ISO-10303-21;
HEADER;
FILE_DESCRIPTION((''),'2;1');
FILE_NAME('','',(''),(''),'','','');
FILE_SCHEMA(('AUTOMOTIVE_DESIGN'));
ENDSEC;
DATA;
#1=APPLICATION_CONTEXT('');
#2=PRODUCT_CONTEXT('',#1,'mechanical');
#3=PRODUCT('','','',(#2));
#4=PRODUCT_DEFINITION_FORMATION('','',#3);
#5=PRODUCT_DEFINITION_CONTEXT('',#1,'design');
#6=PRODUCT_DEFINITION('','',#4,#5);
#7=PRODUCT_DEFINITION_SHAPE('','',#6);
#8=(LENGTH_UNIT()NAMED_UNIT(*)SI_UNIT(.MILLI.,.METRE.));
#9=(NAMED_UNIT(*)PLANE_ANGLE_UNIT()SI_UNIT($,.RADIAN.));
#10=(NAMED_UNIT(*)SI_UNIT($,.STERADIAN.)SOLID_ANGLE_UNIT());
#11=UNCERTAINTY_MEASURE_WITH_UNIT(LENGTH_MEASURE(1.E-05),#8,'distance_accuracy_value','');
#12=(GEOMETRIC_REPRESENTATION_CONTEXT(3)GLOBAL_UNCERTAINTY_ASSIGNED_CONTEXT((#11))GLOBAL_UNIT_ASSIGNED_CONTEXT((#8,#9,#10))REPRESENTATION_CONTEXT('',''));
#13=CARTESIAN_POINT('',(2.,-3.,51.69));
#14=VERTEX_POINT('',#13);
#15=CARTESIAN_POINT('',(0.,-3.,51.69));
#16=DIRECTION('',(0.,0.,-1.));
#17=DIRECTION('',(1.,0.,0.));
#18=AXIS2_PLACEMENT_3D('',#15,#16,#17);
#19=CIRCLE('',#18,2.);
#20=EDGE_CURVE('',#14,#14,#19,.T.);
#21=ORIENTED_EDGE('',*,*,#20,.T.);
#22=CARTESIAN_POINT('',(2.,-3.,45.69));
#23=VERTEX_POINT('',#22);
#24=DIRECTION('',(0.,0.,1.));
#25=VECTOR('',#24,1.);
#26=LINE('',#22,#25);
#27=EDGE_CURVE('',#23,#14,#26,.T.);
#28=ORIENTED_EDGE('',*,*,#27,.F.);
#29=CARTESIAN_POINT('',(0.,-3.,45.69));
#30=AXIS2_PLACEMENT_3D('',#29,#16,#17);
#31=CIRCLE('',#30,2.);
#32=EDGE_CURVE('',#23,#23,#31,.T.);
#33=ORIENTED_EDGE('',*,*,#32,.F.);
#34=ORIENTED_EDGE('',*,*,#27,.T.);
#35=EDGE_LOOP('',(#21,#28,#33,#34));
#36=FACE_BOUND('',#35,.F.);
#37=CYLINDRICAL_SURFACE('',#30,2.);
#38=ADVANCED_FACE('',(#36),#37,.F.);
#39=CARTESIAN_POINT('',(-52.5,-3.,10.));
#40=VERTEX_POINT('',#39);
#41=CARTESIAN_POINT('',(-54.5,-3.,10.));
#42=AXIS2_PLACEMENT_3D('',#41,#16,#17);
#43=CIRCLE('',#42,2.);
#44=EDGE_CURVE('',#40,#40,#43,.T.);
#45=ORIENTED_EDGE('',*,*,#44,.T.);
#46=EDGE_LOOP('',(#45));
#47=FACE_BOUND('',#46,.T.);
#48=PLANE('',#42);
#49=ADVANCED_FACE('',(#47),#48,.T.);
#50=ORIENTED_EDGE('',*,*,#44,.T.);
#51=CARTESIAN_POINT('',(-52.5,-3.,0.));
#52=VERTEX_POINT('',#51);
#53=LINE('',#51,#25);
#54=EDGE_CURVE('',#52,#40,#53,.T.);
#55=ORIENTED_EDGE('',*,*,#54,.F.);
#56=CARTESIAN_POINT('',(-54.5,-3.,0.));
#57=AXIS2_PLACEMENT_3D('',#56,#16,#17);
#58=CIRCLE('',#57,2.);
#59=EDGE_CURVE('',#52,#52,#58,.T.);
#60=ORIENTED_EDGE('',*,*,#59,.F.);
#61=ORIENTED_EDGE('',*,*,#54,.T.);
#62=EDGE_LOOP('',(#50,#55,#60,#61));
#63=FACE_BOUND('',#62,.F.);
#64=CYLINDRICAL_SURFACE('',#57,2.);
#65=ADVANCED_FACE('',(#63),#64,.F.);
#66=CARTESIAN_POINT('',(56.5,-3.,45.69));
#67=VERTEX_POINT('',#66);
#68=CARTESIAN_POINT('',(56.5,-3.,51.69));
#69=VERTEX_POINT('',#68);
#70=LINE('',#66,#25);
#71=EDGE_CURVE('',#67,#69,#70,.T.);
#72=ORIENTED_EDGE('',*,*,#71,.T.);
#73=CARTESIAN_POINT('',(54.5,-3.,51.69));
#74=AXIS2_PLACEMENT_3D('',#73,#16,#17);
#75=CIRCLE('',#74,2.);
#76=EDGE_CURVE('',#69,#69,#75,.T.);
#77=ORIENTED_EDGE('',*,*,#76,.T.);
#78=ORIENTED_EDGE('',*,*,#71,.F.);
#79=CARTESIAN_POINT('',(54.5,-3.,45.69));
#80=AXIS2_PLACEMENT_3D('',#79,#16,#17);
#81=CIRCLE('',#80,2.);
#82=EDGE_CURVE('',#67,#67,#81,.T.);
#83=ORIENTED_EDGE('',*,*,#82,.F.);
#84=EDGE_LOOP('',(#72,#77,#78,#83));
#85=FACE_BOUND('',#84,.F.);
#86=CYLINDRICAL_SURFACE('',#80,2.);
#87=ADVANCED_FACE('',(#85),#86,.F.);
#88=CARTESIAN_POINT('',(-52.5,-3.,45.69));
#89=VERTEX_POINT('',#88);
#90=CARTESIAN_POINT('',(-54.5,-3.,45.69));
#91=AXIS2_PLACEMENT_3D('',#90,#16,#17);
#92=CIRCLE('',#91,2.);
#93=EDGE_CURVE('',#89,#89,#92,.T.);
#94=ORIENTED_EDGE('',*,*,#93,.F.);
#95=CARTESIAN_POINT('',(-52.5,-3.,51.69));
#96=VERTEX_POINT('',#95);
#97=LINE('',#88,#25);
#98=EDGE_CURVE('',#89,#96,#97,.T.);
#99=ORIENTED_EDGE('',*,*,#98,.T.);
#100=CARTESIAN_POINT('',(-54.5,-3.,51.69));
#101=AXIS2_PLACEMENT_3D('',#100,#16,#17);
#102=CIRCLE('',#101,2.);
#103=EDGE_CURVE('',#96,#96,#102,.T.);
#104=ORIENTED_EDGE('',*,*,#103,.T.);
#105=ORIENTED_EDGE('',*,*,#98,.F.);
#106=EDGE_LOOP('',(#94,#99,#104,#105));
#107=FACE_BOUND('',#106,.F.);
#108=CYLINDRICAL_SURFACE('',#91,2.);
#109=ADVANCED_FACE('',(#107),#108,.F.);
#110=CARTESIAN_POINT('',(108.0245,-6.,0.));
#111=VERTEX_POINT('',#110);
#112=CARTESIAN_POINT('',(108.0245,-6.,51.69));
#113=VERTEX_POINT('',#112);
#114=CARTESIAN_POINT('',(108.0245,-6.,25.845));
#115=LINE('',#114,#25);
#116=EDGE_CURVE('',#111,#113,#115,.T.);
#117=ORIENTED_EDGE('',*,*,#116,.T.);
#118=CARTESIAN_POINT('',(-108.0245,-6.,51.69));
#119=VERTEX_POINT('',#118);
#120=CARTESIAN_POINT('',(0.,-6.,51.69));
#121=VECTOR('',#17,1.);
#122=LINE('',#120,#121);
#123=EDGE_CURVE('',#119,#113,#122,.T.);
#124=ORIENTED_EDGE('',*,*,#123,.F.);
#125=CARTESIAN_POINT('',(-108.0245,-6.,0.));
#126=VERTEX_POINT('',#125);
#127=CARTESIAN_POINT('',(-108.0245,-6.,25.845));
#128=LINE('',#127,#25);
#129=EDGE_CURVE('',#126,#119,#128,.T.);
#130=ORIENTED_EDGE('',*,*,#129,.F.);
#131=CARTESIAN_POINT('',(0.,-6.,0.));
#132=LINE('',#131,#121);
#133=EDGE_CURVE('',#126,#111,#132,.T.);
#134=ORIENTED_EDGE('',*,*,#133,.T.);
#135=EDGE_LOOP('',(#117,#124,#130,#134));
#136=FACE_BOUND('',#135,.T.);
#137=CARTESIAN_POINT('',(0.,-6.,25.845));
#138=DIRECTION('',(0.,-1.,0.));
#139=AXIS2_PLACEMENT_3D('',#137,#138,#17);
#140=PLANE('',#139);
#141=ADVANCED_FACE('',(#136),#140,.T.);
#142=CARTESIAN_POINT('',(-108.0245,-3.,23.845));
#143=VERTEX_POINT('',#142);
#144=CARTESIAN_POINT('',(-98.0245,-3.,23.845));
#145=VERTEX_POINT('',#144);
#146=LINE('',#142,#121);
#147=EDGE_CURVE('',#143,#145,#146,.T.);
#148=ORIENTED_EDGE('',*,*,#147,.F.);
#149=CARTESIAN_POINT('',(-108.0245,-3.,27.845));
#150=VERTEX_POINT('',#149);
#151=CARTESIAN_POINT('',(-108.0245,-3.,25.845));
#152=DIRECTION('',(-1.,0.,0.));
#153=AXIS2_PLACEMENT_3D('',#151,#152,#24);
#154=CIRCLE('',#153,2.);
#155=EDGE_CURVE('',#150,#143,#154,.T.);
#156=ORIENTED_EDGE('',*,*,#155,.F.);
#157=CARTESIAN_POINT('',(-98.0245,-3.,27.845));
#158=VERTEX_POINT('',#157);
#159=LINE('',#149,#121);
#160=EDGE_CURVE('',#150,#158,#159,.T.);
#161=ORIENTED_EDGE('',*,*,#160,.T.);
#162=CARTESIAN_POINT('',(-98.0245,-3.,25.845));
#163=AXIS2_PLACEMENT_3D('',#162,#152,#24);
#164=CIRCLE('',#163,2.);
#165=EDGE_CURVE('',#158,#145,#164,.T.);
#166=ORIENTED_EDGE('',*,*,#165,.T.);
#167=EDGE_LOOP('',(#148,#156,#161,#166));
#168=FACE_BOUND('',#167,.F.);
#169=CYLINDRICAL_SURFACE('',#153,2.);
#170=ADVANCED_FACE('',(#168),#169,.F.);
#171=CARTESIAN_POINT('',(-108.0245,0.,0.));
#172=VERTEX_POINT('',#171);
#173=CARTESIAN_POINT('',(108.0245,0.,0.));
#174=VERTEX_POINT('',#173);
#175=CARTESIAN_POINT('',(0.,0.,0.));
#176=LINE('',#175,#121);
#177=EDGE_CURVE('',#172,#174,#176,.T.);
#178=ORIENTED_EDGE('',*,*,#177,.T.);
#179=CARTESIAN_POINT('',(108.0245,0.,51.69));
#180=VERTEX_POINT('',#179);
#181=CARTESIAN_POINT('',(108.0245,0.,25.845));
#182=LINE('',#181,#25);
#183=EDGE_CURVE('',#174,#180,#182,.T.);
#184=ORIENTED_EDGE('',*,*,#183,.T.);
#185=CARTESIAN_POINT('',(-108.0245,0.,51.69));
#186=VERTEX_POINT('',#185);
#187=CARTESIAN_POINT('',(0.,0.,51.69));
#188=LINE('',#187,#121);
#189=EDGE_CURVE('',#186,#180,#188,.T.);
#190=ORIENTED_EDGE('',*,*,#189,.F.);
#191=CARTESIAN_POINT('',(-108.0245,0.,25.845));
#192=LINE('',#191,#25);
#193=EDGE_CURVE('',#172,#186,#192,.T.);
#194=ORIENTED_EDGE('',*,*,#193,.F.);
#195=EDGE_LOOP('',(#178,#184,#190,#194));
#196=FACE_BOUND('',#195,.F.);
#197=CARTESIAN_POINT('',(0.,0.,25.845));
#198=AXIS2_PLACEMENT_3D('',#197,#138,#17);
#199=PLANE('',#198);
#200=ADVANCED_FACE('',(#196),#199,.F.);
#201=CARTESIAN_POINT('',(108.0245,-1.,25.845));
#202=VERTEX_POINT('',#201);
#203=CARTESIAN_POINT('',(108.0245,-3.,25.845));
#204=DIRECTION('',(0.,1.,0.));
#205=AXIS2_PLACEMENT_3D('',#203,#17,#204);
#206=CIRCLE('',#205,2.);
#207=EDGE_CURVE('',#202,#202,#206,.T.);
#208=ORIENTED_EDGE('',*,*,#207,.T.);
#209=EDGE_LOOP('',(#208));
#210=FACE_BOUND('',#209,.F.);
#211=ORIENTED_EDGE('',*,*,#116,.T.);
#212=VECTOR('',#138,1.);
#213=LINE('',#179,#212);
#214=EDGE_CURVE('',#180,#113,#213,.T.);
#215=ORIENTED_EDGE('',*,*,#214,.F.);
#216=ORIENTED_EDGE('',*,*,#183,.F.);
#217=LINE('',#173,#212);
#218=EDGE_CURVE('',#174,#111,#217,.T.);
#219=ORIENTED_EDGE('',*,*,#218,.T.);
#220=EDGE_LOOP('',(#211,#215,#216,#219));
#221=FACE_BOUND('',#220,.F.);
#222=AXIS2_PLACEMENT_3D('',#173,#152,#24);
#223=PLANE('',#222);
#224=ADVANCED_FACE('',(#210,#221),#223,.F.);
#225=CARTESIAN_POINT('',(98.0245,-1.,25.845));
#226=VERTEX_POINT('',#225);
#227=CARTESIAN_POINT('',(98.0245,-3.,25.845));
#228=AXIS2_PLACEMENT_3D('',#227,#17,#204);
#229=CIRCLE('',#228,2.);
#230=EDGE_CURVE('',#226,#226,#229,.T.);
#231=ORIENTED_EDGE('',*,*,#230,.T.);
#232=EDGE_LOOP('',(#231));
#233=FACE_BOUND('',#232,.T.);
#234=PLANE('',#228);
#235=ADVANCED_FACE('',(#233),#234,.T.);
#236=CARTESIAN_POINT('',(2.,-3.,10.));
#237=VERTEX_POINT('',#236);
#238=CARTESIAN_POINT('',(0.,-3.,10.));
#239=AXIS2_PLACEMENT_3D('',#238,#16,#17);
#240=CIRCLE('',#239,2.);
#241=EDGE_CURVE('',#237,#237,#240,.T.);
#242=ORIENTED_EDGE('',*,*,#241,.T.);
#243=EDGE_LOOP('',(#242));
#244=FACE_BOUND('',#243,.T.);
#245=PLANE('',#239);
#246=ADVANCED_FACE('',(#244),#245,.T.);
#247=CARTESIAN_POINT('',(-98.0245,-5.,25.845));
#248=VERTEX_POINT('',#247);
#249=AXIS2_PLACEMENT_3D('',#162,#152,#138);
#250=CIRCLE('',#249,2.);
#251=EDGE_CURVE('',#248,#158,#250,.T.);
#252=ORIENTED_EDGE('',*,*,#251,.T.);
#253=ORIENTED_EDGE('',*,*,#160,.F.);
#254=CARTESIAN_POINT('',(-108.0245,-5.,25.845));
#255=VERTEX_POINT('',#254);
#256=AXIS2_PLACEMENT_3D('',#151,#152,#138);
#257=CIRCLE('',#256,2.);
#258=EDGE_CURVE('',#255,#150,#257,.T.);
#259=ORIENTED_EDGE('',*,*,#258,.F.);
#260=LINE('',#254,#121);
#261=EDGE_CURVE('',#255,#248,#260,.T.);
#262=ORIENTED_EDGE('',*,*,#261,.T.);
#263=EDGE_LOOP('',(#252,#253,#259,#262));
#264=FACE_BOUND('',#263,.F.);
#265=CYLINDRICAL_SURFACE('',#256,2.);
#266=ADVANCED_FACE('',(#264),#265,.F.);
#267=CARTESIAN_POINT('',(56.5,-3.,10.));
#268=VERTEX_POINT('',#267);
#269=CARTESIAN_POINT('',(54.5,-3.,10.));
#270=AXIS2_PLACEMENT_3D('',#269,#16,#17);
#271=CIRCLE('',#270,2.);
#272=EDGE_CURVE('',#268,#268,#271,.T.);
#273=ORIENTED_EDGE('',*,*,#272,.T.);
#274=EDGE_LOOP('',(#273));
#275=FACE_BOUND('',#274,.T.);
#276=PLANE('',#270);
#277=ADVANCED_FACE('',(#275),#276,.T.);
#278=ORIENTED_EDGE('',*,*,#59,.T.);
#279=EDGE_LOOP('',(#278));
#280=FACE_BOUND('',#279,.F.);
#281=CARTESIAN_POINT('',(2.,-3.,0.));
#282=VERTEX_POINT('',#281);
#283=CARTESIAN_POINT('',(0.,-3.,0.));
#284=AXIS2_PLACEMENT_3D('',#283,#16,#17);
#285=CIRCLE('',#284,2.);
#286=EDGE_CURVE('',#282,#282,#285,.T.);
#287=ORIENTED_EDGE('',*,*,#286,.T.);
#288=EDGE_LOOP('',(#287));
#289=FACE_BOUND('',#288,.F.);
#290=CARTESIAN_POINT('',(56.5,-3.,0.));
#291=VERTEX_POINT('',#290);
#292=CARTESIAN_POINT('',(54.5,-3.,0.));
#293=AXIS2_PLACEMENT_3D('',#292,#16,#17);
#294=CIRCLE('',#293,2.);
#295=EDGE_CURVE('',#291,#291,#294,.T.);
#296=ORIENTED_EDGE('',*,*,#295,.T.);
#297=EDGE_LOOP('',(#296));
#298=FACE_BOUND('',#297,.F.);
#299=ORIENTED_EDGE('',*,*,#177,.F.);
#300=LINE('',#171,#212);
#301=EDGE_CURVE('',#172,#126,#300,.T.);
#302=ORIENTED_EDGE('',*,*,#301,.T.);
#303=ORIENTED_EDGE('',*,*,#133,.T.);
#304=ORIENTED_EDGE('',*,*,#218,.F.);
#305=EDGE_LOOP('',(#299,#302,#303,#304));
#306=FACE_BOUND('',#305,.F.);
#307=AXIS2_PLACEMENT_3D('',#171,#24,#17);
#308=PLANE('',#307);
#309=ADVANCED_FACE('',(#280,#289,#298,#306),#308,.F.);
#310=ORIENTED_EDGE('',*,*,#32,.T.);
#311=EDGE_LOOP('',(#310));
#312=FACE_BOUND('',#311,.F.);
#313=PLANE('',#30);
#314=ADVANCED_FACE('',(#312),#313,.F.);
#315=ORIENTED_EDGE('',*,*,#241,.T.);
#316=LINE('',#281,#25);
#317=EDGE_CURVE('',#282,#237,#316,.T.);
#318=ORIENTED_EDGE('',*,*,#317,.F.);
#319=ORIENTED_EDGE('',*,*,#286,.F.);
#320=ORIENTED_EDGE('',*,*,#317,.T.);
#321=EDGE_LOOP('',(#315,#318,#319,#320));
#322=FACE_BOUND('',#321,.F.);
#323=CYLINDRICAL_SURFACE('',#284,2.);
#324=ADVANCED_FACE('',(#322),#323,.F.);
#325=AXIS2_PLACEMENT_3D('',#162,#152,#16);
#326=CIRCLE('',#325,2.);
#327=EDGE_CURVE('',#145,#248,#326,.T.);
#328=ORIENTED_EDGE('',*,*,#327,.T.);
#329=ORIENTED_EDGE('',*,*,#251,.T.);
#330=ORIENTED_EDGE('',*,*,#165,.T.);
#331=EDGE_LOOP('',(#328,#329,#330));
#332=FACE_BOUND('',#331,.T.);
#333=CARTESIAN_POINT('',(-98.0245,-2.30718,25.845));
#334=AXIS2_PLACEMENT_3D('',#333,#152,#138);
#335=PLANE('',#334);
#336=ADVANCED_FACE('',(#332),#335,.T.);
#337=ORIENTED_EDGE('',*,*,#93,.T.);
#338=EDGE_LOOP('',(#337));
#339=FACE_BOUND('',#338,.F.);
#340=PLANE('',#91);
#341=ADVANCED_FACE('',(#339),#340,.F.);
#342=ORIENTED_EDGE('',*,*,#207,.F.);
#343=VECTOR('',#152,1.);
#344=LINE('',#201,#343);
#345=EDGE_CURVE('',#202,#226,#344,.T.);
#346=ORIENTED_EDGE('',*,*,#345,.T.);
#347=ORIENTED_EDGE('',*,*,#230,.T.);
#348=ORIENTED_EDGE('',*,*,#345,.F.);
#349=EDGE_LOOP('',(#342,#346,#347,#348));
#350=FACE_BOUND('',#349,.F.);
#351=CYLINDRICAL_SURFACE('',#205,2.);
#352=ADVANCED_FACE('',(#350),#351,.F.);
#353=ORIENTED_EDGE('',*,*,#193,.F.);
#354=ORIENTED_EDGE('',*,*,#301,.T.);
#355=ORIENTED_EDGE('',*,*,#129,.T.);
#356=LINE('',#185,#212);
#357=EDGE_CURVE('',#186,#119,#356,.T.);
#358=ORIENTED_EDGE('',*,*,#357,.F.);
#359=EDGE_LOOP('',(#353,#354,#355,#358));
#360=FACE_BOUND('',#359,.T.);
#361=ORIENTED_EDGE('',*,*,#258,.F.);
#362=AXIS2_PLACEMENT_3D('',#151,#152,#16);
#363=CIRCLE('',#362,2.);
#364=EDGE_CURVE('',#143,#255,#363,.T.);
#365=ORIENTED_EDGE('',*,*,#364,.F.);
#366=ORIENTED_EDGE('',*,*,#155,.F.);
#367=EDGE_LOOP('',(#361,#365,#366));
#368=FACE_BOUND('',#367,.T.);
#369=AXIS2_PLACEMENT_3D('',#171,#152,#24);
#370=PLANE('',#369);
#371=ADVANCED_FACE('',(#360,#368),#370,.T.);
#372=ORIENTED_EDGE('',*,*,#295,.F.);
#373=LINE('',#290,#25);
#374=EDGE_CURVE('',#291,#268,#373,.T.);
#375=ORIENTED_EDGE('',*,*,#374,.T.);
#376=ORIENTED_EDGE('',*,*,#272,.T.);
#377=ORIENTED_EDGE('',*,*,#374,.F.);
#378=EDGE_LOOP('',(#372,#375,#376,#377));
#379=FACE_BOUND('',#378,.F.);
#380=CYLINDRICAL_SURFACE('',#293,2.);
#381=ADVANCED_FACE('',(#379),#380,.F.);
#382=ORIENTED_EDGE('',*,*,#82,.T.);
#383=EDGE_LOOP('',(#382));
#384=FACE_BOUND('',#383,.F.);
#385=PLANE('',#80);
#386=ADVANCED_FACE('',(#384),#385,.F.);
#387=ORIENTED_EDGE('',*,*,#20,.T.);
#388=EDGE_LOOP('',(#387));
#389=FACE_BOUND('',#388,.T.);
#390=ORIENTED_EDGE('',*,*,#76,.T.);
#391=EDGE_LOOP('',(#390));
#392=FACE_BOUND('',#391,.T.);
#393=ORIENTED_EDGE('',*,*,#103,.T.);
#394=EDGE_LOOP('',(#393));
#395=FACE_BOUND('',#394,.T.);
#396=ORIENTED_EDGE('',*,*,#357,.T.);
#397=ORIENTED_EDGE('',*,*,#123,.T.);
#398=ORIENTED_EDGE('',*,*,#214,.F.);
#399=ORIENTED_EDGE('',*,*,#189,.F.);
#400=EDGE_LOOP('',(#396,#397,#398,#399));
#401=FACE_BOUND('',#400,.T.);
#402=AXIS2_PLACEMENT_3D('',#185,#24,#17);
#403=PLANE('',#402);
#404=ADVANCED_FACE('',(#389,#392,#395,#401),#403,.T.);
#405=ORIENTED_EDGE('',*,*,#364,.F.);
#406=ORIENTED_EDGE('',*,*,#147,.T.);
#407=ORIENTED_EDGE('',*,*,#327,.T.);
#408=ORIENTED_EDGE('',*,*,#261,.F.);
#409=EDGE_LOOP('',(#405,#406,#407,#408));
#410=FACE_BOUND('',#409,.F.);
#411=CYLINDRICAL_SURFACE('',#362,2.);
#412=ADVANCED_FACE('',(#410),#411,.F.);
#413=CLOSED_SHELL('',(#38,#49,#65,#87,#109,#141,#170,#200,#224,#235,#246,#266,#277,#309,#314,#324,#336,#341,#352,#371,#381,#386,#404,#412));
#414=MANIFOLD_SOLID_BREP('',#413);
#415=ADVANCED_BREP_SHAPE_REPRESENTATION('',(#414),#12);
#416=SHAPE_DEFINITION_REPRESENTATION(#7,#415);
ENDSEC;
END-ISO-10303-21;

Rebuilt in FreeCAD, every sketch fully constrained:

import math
import FreeCAD as App
import Part
import Sketcher

V = App.Vector
Q = App.Units.Quantity

doc = App.newDocument("Part")
body = doc.addObject("PartDesign::Body", "Body")

# Sketch on XZ plane
sketch1 = body.newObject("Sketcher::SketchObject", "Sketch")
sketch1.AttachmentSupport = (doc.getObject("XZ_Plane"), [""])
sketch1.MapMode = "FlatFace"
sketch1.addGeometry(Part.LineSegment(V(-108, 52, 0), V(-108, 0, 0)), False)
sketch1.addGeometry(Part.LineSegment(V(-108, 0, 0), V(108, 0, 0)), False)
sketch1.addGeometry(Part.LineSegment(V(108, 0, 0), V(108, 52, 0)), False)
sketch1.addGeometry(Part.LineSegment(V(108, 52, 0), V(-108, 52, 0)), False)
sketch1.addConstraint(Sketcher.Constraint("Coincident", 0, 2, 1, 1))
sketch1.addConstraint(Sketcher.Constraint("Coincident", 1, 2, 2, 1))
sketch1.addConstraint(Sketcher.Constraint("Coincident", 2, 2, 3, 1))
sketch1.addConstraint(Sketcher.Constraint("Coincident", 3, 2, 0, 1))
sketch1.addConstraint(Sketcher.Constraint("Vertical", 0))
sketch1.addConstraint(Sketcher.Constraint("Horizontal", 1))
sketch1.addConstraint(Sketcher.Constraint("Vertical", 2))
sketch1.addConstraint(Sketcher.Constraint("Horizontal", 3))
sketch1.addConstraint(Sketcher.Constraint("Symmetric", 0, 2, 1, 2, -1, 1))
sketch1.addConstraint(Sketcher.Constraint("DistanceY", 0, 2, 0, 1, Q("51.69 mm")))
sketch1.addConstraint(Sketcher.Constraint("DistanceX", 1, 1, 1, 2, Q("216.049 mm")))
pad1 = body.newObject("PartDesign::Pad", "Pad")
pad1.Profile = sketch1
pad1.Length = 6

# Sketch on XY plane
sketch2 = body.newObject("Sketcher::SketchObject", "Sketch001")
sketch2.AttachmentSupport = (doc.getObject("XY_Plane"), [""])
sketch2.MapMode = "FlatFace"
sketch2.addGeometry(Part.Circle(V(0, -3, 0), V(0, 0, 1), 2), False)
sketch2.addGeometry(Part.Circle(V(-54.5, -3, 0), V(0, 0, 1), 2), False)
sketch2.addGeometry(Part.Circle(V(54.5, -3, 0), V(0, 0, 1), 2), False)
sketch2.addConstraint(Sketcher.Constraint("Equal", 0, 1))
sketch2.addConstraint(Sketcher.Constraint("Equal", 1, 2))
sketch2.addConstraint(Sketcher.Constraint("Symmetric", 1, 3, 2, 3, -2))
sketch2.addConstraint(Sketcher.Constraint("PointOnObject", 0, 3, -2))
sketch2.addConstraint(Sketcher.Constraint("Horizontal", 0, 3, 1, 3))
sketch2.addConstraint(Sketcher.Constraint("Diameter", 0, Q("4 mm")))
sketch2.addConstraint(Sketcher.Constraint("DistanceY", 0, 3, -1, 1, Q("3 mm")))
sketch2.addConstraint(Sketcher.Constraint("DistanceX", 1, 3, 2, 3, Q("109 mm")))
pocket1 = body.newObject("PartDesign::Pocket", "Pocket")
pocket1.Profile = sketch2
pocket1.Length = 10
pocket1.Reversed = True

# Sketch on YZ plane
sketch3 = body.newObject("Sketcher::SketchObject", "Sketch002")
sketch3.AttachmentSupport = (doc.getObject("YZ_Plane"), [""])
sketch3.MapMode = "FlatFace"
sketch3.AttachmentOffset = App.Placement(V(0, 0, -108.0245), App.Rotation())
sketch3.addGeometry(Part.ArcOfCircle(Part.Circle(V(-3, 25.8, 0), V(0, 0, 1), 2), math.radians(90), math.radians(180)), False)
sketch3.addGeometry(Part.ArcOfCircle(Part.Circle(V(-3, 25.8, 0), V(0, 0, 1), 2), math.radians(-90), math.radians(90)), False)
sketch3.addGeometry(Part.ArcOfCircle(Part.Circle(V(-3, 25.8, 0), V(0, 0, 1), 2), math.radians(180), math.radians(270)), False)
sketch3.addConstraint(Sketcher.Constraint("Tangent", 0, 1, 1, 2))
sketch3.addConstraint(Sketcher.Constraint("Tangent", 1, 1, 2, 2))
sketch3.addConstraint(Sketcher.Constraint("Tangent", 2, 1, 0, 2))
sketch3.addConstraint(Sketcher.Constraint("Horizontal", 1, 3, 2, 1))
sketch3.addConstraint(Sketcher.Constraint("Vertical", 2, 3, 0, 1))
sketch3.addConstraint(Sketcher.Constraint("Vertical", 0, 1, 1, 1))
sketch3.addConstraint(Sketcher.Constraint("Radius", 0, Q("2 mm")))
sketch3.addConstraint(Sketcher.Constraint("DistanceX", 0, 3, -1, 1, Q("3 mm")))
sketch3.addConstraint(Sketcher.Constraint("DistanceY", -1, 1, 0, 3, Q("25.845 mm")))
pad2 = body.newObject("PartDesign::Pad", "Pad001")
pad2.Profile = sketch3
pad2.Length = 10

# Sketch on XY plane
sketch4 = body.newObject("Sketcher::SketchObject", "Sketch003")
sketch4.AttachmentSupport = (doc.getObject("XY_Plane"), [""])
sketch4.MapMode = "FlatFace"
sketch4.AttachmentOffset = App.Placement(V(0, 0, 45.69), App.Rotation())
sketch4.addGeometry(Part.Circle(V(0, -3, 0), V(0, 0, 1), 2), False)
sketch4.addGeometry(Part.Circle(V(-54.5, -3, 0), V(0, 0, 1), 2), False)
sketch4.addGeometry(Part.Circle(V(54.5, -3, 0), V(0, 0, 1), 2), False)
sketch4.addConstraint(Sketcher.Constraint("Equal", 0, 1))
sketch4.addConstraint(Sketcher.Constraint("Equal", 1, 2))
sketch4.addConstraint(Sketcher.Constraint("Symmetric", 1, 3, 2, 3, -2))
sketch4.addConstraint(Sketcher.Constraint("PointOnObject", 0, 3, -2))
sketch4.addConstraint(Sketcher.Constraint("Horizontal", 0, 3, 1, 3))
sketch4.addConstraint(Sketcher.Constraint("Diameter", 0, Q("4 mm")))
sketch4.addConstraint(Sketcher.Constraint("DistanceY", 0, 3, -1, 1, Q("3 mm")))
sketch4.addConstraint(Sketcher.Constraint("DistanceX", 1, 3, 2, 3, Q("109 mm")))
pocket2 = body.newObject("PartDesign::Pocket", "Pocket001")
pocket2.Profile = sketch4
pocket2.Length = 6
pocket2.Reversed = True

# Sketch on YZ plane
sketch5 = body.newObject("Sketcher::SketchObject", "Sketch004")
sketch5.AttachmentSupport = (doc.getObject("YZ_Plane"), [""])
sketch5.MapMode = "FlatFace"
sketch5.AttachmentOffset = App.Placement(V(0, 0, -108.0245), App.Rotation())
sketch5.addGeometry(Part.ArcOfCircle(Part.Circle(V(-3, 25.8, 0), V(0, 0, 1), 2), math.radians(-90), math.radians(90)), False)
sketch5.addGeometry(Part.ArcOfCircle(Part.Circle(V(-3, 25.8, 0), V(0, 0, 1), 2), math.radians(180), math.radians(270)), False)
sketch5.addGeometry(Part.ArcOfCircle(Part.Circle(V(-3, 25.8, 0), V(0, 0, 1), 2), math.radians(90), math.radians(180)), False)
sketch5.addConstraint(Sketcher.Constraint("Tangent", 0, 1, 1, 2))
sketch5.addConstraint(Sketcher.Constraint("Tangent", 1, 1, 2, 2))
sketch5.addConstraint(Sketcher.Constraint("Tangent", 2, 1, 0, 2))
sketch5.addConstraint(Sketcher.Constraint("Horizontal", 2, 3, 1, 1))
sketch5.addConstraint(Sketcher.Constraint("Vertical", 2, 3, 0, 1))
sketch5.addConstraint(Sketcher.Constraint("Vertical", 0, 1, 2, 1))
sketch5.addConstraint(Sketcher.Constraint("Radius", 0, Q("2 mm")))
sketch5.addConstraint(Sketcher.Constraint("DistanceX", 0, 3, -1, 1, Q("3 mm")))
sketch5.addConstraint(Sketcher.Constraint("DistanceY", -1, 1, 0, 3, Q("25.845 mm")))
pocket3 = body.newObject("PartDesign::Pocket", "Pocket002")
pocket3.Profile = sketch5
pocket3.Length = 10
pocket3.Reversed = True

# Sketch on YZ plane
sketch6 = body.newObject("Sketcher::SketchObject", "Sketch005")
sketch6.AttachmentSupport = (doc.getObject("YZ_Plane"), [""])
sketch6.MapMode = "FlatFace"
sketch6.AttachmentOffset = App.Placement(V(0, 0, 108.0245), App.Rotation())
sketch6.addGeometry(Part.Circle(V(-3, 25.8, 0), V(0, 0, 1), 2), False)
sketch6.addConstraint(Sketcher.Constraint("Diameter", 0, Q("4 mm")))
sketch6.addConstraint(Sketcher.Constraint("DistanceX", 0, 3, -1, 1, Q("3 mm")))
sketch6.addConstraint(Sketcher.Constraint("DistanceY", -1, 1, 0, 3, Q("25.845 mm")))
pocket4 = body.newObject("PartDesign::Pocket", "Pocket003")
pocket4.Profile = sketch6
pocket4.Length = 10

doc.recompute()
